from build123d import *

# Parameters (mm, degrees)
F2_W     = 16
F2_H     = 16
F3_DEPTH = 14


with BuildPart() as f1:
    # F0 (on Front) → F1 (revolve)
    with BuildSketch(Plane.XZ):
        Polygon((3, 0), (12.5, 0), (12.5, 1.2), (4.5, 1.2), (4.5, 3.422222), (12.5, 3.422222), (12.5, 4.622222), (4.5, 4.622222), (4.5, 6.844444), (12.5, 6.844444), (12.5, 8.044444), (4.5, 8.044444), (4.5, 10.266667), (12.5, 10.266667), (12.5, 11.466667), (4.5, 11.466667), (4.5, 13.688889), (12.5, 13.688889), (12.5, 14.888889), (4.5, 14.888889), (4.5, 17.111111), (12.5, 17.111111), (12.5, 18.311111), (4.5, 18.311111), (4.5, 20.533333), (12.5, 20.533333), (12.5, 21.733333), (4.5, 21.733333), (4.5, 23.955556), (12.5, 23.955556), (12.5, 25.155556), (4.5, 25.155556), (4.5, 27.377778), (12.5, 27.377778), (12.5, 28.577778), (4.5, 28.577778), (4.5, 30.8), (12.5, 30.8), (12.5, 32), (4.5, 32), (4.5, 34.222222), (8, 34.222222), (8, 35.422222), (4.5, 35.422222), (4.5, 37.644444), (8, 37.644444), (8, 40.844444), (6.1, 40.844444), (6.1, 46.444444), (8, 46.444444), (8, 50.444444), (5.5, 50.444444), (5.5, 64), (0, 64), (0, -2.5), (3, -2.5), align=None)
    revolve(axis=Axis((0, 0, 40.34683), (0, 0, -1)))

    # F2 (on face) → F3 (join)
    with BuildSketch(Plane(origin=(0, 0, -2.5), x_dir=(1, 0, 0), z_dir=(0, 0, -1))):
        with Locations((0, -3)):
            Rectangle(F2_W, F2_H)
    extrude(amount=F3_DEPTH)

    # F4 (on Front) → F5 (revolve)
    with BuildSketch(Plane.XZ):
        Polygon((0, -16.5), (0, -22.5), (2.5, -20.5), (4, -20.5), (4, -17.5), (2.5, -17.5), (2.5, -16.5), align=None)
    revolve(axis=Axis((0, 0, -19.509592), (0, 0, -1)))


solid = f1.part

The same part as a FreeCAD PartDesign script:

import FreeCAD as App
import Part
import Sketcher
from FreeCAD import Vector

doc = App.newDocument("Part")
body = doc.addObject("PartDesign::Body", "Body")

# Sketch on XZ plane
sketch1 = doc.addObject("Sketcher::SketchObject", "Sketch")
body.addObject(sketch1)
sketch1.AttachmentSupport = (doc.XZ_Plane, [""])
sketch1.MapMode = "FlatFace"
sketch1.addGeometry([
    Part.LineSegment(Vector(3, 0, 0), Vector(12.5, 0, 0)),  # 0
    Part.LineSegment(Vector(12.5, 0, 0), Vector(12.5, 1.2, 0)),  # 1
    Part.LineSegment(Vector(12.5, 1.2, 0), Vector(4.5, 1.2, 0)),  # 2
    Part.LineSegment(Vector(4.5, 1.2, 0), Vector(4.5, 3.4, 0)),  # 3
    Part.LineSegment(Vector(4.5, 3.4, 0), Vector(12.5, 3.4, 0)),  # 4
    Part.LineSegment(Vector(12.5, 3.4, 0), Vector(12.5, 4.6, 0)),  # 5
    Part.LineSegment(Vector(12.5, 4.6, 0), Vector(4.5, 4.6, 0)),  # 6
    Part.LineSegment(Vector(4.5, 4.6, 0), Vector(4.5, 6.8, 0)),  # 7
    Part.LineSegment(Vector(4.5, 6.8, 0), Vector(12.5, 6.8, 0)),  # 8
    Part.LineSegment(Vector(12.5, 6.8, 0), Vector(12.5, 8, 0)),  # 9
    Part.LineSegment(Vector(12.5, 8, 0), Vector(4.5, 8, 0)),  # 10
    Part.LineSegment(Vector(4.5, 8, 0), Vector(4.5, 10.3, 0)),  # 11
    Part.LineSegment(Vector(4.5, 10.3, 0), Vector(12.5, 10.3, 0)),  # 12
    Part.LineSegment(Vector(12.5, 10.3, 0), Vector(12.5, 11.5, 0)),  # 13
    Part.LineSegment(Vector(12.5, 11.5, 0), Vector(4.5, 11.5, 0)),  # 14
    Part.LineSegment(Vector(4.5, 11.5, 0), Vector(4.5, 13.7, 0)),  # 15
    Part.LineSegment(Vector(4.5, 13.7, 0), Vector(12.5, 13.7, 0)),  # 16
    Part.LineSegment(Vector(12.5, 13.7, 0), Vector(12.5, 14.9, 0)),  # 17
    Part.LineSegment(Vector(12.5, 14.9, 0), Vector(4.5, 14.9, 0)),  # 18
    Part.LineSegment(Vector(4.5, 14.9, 0), Vector(4.5, 17.1, 0)),  # 19
    Part.LineSegment(Vector(4.5, 17.1, 0), Vector(12.5, 17.1, 0)),  # 20
    Part.LineSegment(Vector(12.5, 17.1, 0), Vector(12.5, 18.3, 0)),  # 21
    Part.LineSegment(Vector(12.5, 18.3, 0), Vector(4.5, 18.3, 0)),  # 22
    Part.LineSegment(Vector(4.5, 18.3, 0), Vector(4.5, 20.5, 0)),  # 23
    Part.LineSegment(Vector(4.5, 20.5, 0), Vector(12.5, 20.5, 0)),  # 24
    Part.LineSegment(Vector(12.5, 20.5, 0), Vector(12.5, 21.7, 0)),  # 25
    Part.LineSegment(Vector(12.5, 21.7, 0), Vector(4.5, 21.7, 0)),  # 26
    Part.LineSegment(Vector(4.5, 21.7, 0), Vector(4.5, 24, 0)),  # 27
    Part.LineSegment(Vector(4.5, 24, 0), Vector(12.5, 24, 0)),  # 28
    Part.LineSegment(Vector(12.5, 24, 0), Vector(12.5, 25.2, 0)),  # 29
    Part.LineSegment(Vector(12.5, 25.2, 0), Vector(4.5, 25.2, 0)),  # 30
    Part.LineSegment(Vector(4.5, 25.2, 0), Vector(4.5, 27.4, 0)),  # 31
    Part.LineSegment(Vector(4.5, 27.4, 0), Vector(12.5, 27.4, 0)),  # 32
    Part.LineSegment(Vector(12.5, 27.4, 0), Vector(12.5, 28.6, 0)),  # 33
    Part.LineSegment(Vector(12.5, 28.6, 0), Vector(4.5, 28.6, 0)),  # 34
    Part.LineSegment(Vector(4.5, 28.6, 0), Vector(4.5, 30.8, 0)),  # 35
    Part.LineSegment(Vector(4.5, 30.8, 0), Vector(12.5, 30.8, 0)),  # 36
    Part.LineSegment(Vector(12.5, 30.8, 0), Vector(12.5, 32, 0)),  # 37
    Part.LineSegment(Vector(12.5, 32, 0), Vector(4.5, 32, 0)),  # 38
    Part.LineSegment(Vector(4.5, 32, 0), Vector(4.5, 34.2, 0)),  # 39
    Part.LineSegment(Vector(4.5, 34.2, 0), Vector(8, 34.2, 0)),  # 40
    Part.LineSegment(Vector(8, 34.2, 0), Vector(8, 35.4, 0)),  # 41
    Part.LineSegment(Vector(8, 35.4, 0), Vector(4.5, 35.4, 0)),  # 42
    Part.LineSegment(Vector(4.5, 35.4, 0), Vector(4.5, 37.6, 0)),  # 43
    Part.LineSegment(Vector(4.5, 37.6, 0), Vector(8, 37.6, 0)),  # 44
    Part.LineSegment(Vector(8, 37.6, 0), Vector(8, 40.8, 0)),  # 45
    Part.LineSegment(Vector(8, 40.8, 0), Vector(6.1, 40.8, 0)),  # 46
    Part.LineSegment(Vector(6.1, 40.8, 0), Vector(6.1, 46.4, 0)),  # 47
    Part.LineSegment(Vector(6.1, 46.4, 0), Vector(8, 46.4, 0)),  # 48
    Part.LineSegment(Vector(8, 46.4, 0), Vector(8, 50.4, 0)),  # 49
    Part.LineSegment(Vector(8, 50.4, 0), Vector(5.5, 50.4, 0)),  # 50
    Part.LineSegment(Vector(5.5, 50.4, 0), Vector(5.5, 64, 0)),  # 51
    Part.LineSegment(Vector(5.5, 64, 0), Vector(0, 64, 0)),  # 52
    Part.LineSegment(Vector(0, 64, 0), Vector(0, -2.5, 0)),  # 53
    Part.LineSegment(Vector(0, -2.5, 0), Vector(3, -2.5, 0)),  # 54
    Part.LineSegment(Vector(3, -2.5, 0), Vector(3, 0, 0)),  # 55
], False)
sketch1.addConstraint([
    Sketcher.Constraint("Coincident", 0, 2, 1, 1),
    Sketcher.Constraint("Coincident", 1, 2, 2, 1),
    Sketcher.Constraint("Coincident", 2, 2, 3, 1),
    Sketcher.Constraint("Coincident", 3, 2, 4, 1),
    Sketcher.Constraint("Coincident", 4, 2, 5, 1),
    Sketcher.Constraint("Coincident", 5, 2, 6, 1),
    Sketcher.Constraint("Coincident", 6, 2, 7, 1),
    Sketcher.Constraint("Coincident", 7, 2, 8, 1),
    Sketcher.Constraint("Coincident", 8, 2, 9, 1),
    Sketcher.Constraint("Coincident", 9, 2, 10, 1),
    Sketcher.Constraint("Coincident", 10, 2, 11, 1),
    Sketcher.Constraint("Coincident", 11, 2, 12, 1),
    Sketcher.Constraint("Coincident", 12, 2, 13, 1),
    Sketcher.Constraint("Coincident", 13, 2, 14, 1),
    Sketcher.Constraint("Coincident", 14, 2, 15, 1),
    Sketcher.Constraint("Coincident", 15, 2, 16, 1),
    Sketcher.Constraint("Coincident", 16, 2, 17, 1),
    Sketcher.Constraint("Coincident", 17, 2, 18, 1),
    Sketcher.Constraint("Coincident", 18, 2, 19, 1),
    Sketcher.Constraint("Coincident", 19, 2, 20, 1),
    Sketcher.Constraint("Coincident", 20, 2, 21, 1),
    Sketcher.Constraint("Coincident", 21, 2, 22, 1),
    Sketcher.Constraint("Coincident", 22, 2, 23, 1),
    Sketcher.Constraint("Coincident", 23, 2, 24, 1),
    Sketcher.Constraint("Coincident", 24, 2, 25, 1),
    Sketcher.Constraint("Coincident", 25, 2, 26, 1),
    Sketcher.Constraint("Coincident", 26, 2, 27, 1),
    Sketcher.Constraint("Coincident", 27, 2, 28, 1),
    Sketcher.Constraint("Coincident", 28, 2, 29, 1),
    Sketcher.Constraint("Coincident", 29, 2, 30, 1),
    Sketcher.Constraint("Coincident", 30, 2, 31, 1),
    Sketcher.Constraint("Coincident", 31, 2, 32, 1),
    Sketcher.Constraint("Coincident", 32, 2, 33, 1),
    Sketcher.Constraint("Coincident", 33, 2, 34, 1),
    Sketcher.Constraint("Coincident", 34, 2, 35, 1),
    Sketcher.Constraint("Coincident", 35, 2, 36, 1),
    Sketcher.Constraint("Coincident", 36, 2, 37, 1),
    Sketcher.Constraint("Coincident", 37, 2, 38, 1),
    Sketcher.Constraint("Coincident", 38, 2, 39, 1),
    Sketcher.Constraint("Coincident", 39, 2, 40, 1),
    Sketcher.Constraint("Coincident", 40, 2, 41, 1),
    Sketcher.Constraint("Coincident", 41, 2, 42, 1),
    Sketcher.Constraint("Coincident", 42, 2, 43, 1),
    Sketcher.Constraint("Coincident", 43, 2, 44, 1),
    Sketcher.Constraint("Coincident", 44, 2, 45, 1),
    Sketcher.Constraint("Coincident", 45, 2, 46, 1),
    Sketcher.Constraint("Coincident", 46, 2, 47, 1),
    Sketcher.Constraint("Coincident", 47, 2, 48, 1),
    Sketcher.Constraint("Coincident", 48, 2, 49, 1),
    Sketcher.Constraint("Coincident", 49, 2, 50, 1),
    Sketcher.Constraint("Coincident", 50, 2, 51, 1),
    Sketcher.Constraint("Coincident", 51, 2, 52, 1),
    Sketcher.Constraint("Coincident", 52, 2, 53, 1),
    Sketcher.Constraint("Coincident", 53, 2, 54, 1),
    Sketcher.Constraint("Coincident", 54, 2, 55, 1),
    Sketcher.Constraint("Coincident", 55, 2, 0, 1),
    Sketcher.Constraint("Horizontal", 0),
    Sketcher.Constraint("Vertical", 1),
    Sketcher.Constraint("Horizontal", 2),
    Sketcher.Constraint("Vertical", 3),
    Sketcher.Constraint("Horizontal", 4),
    Sketcher.Constraint("Vertical", 5),
    Sketcher.Constraint("Horizontal", 6),
    Sketcher.Constraint("Vertical", 7),
    Sketcher.Constraint("Horizontal", 8),
    Sketcher.Constraint("Vertical", 9),
    Sketcher.Constraint("Horizontal", 10),
    Sketcher.Constraint("Vertical", 11),
    Sketcher.Constraint("Horizontal", 12),
    Sketcher.Constraint("Vertical", 13),
    Sketcher.Constraint("Horizontal", 14),
    Sketcher.Constraint("Vertical", 15),
    Sketcher.Constraint("Horizontal", 16),
    Sketcher.Constraint("Vertical", 17),
    Sketcher.Constraint("Horizontal", 18),
    Sketcher.Constraint("Vertical", 19),
    Sketcher.Constraint("Horizontal", 20),
    Sketcher.Constraint("Vertical", 21),
    Sketcher.Constraint("Horizontal", 22),
    Sketcher.Constraint("Vertical", 23),
    Sketcher.Constraint("Horizontal", 24),
    Sketcher.Constraint("Vertical", 25),
    Sketcher.Constraint("Horizontal", 26),
    Sketcher.Constraint("Vertical", 27),
    Sketcher.Constraint("Horizontal", 28),
    Sketcher.Constraint("Vertical", 29),
    Sketcher.Constraint("Horizontal", 30),
    Sketcher.Constraint("Vertical", 31),
    Sketcher.Constraint("Horizontal", 32),
    Sketcher.Constraint("Vertical", 33),
    Sketcher.Constraint("Horizontal", 34),
    Sketcher.Constraint("Vertical", 35),
    Sketcher.Constraint("Horizontal", 36),
    Sketcher.Constraint("Vertical", 37),
    Sketcher.Constraint("Horizontal", 38),
    Sketcher.Constraint("Vertical", 39),
    Sketcher.Constraint("Horizontal", 40),
    Sketcher.Constraint("Vertical", 41),
    Sketcher.Constraint("Horizontal", 42),
    Sketcher.Constraint("Vertical", 43),
    Sketcher.Constraint("Horizontal", 44),
    Sketcher.Constraint("Vertical", 45),
    Sketcher.Constraint("Horizontal", 46),
    Sketcher.Constraint("Vertical", 47),
    Sketcher.Constraint("Horizontal", 48),
    Sketcher.Constraint("Vertical", 49),
    Sketcher.Constraint("Horizontal", 50),
    Sketcher.Constraint("Vertical", 51),
    Sketcher.Constraint("Horizontal", 52),
    Sketcher.Constraint("Vertical", 53),
    Sketcher.Constraint("Horizontal", 54),
    Sketcher.Constraint("Vertical", 55),
    Sketcher.Constraint("PointOnObject", 0, 2, -1),
    Sketcher.Constraint("PointOnObject", 52, 2, -2),
    Sketcher.Constraint("Vertical", 1, 2, 4, 2),
    Sketcher.Constraint("Vertical", 3, 2, 6, 2),
    Sketcher.Constraint("Vertical", 5, 2, 8, 2),
    Sketcher.Constraint("Vertical", 7, 2, 10, 2),
    Sketcher.Constraint("Vertical", 9, 2, 12, 2),
    Sketcher.Constraint("Vertical", 11, 2, 14, 2),
    Sketcher.Constraint("Vertical", 13, 2, 16, 2),
    Sketcher.Constraint("Vertical", 15, 2, 18, 2),
    Sketcher.Constraint("Vertical", 17, 2, 20, 2),
    Sketcher.Constraint("Vertical", 19, 2, 22, 2),
    Sketcher.Constraint("Vertical", 21, 2, 24, 2),
    Sketcher.Constraint("Vertical", 23, 2, 26, 2),
    Sketcher.Constraint("Vertical", 25, 2, 28, 2),
    Sketcher.Constraint("Vertical", 27, 2, 30, 2),
    Sketcher.Constraint("Vertical", 29, 2, 32, 2),
    Sketcher.Constraint("Vertical", 31, 2, 34, 2),
    Sketcher.Constraint("Vertical", 33, 2, 36, 2),
    Sketcher.Constraint("Vertical", 35, 2, 38, 2),
    Sketcher.Constraint("Vertical", 39, 2, 42, 2),
    Sketcher.Constraint("Vertical", 41, 2, 44, 2),
    Sketcher.Constraint("Vertical", 45, 2, 48, 2),
    Sketcher.Constraint("Equal", 1, 5),
    Sketcher.Constraint("Equal", 3, 7),
    Sketcher.Constraint("Equal", 5, 9),
    Sketcher.Constraint("Equal", 7, 11),
    Sketcher.Constraint("Equal", 9, 13),
    Sketcher.Constraint("Equal", 11, 15),
    Sketcher.Constraint("Equal", 13, 17),
    Sketcher.Constraint("Equal", 15, 19),
    Sketcher.Constraint("Equal", 17, 21),
    Sketcher.Constraint("Equal", 19, 23),
    Sketcher.Constraint("Equal", 21, 25),
    Sketcher.Constraint("Equal", 23, 27),
    Sketcher.Constraint("Equal", 25, 29),
    Sketcher.Constraint("Equal", 27, 31),
    Sketcher.Constraint("Equal", 29, 33),
    Sketcher.Constraint("Equal", 31, 35),
    Sketcher.Constraint("Equal", 33, 37),
    Sketcher.Constraint("Equal", 35, 39),
    Sketcher.Constraint("Equal", 37, 41),
    Sketcher.Constraint("Equal", 39, 43),
    Sketcher.Constraint("Equal", 50, 55),
    Sketcher.Constraint("DistanceX", 2, 2, 2, 1, 8.0),
    Sketcher.Constraint("DistanceX", 54, 1, 54, 2, 3.0),
    Sketcher.Constraint("DistanceY", 49, 1, 49, 2, 4.0),
    Sketcher.Constraint("DistanceX", 0, 1, 0, 2, 9.5),
    Sketcher.Constraint("DistanceX", 40, 1, 40, 2, 3.5),
    Sketcher.Constraint("DistanceX", 46, 2, 46, 1, 1.9),
    Sketcher.Constraint("DistanceX", 50, 2, 50, 1, 2.5),
    Sketcher.Constraint("DistanceY", 1, 1, 1, 2, 1.2),
    Sketcher.Constraint("DistanceY", 45, 1, 45, 2, 3.2),
    Sketcher.Constraint("DistanceY", 47, 1, 47, 2, 5.6),
    Sketcher.Constraint("DistanceY", 53, 2, 53, 1, 66.5),
    Sketcher.Constraint("DistanceY", -1, 1, 37, 2, 32.0),
])
revolution = doc.addObject("PartDesign::Revolution", "Revolution")
body.addObject(revolution)
revolution.Profile = sketch1
revolution.ReferenceAxis = (sketch1, ["V_Axis"])
revolution.Angle = 360

# Sketch on XY plane
sketch2 = doc.addObject("Sketcher::SketchObject", "Sketch001")
body.addObject(sketch2)
sketch2.AttachmentSupport = (doc.XY_Plane, [""])
sketch2.MapMode = "FlatFace"
sketch2.AttachmentOffset = App.Placement(Vector(0, 0, -2.5), App.Rotation())
sketch2.addGeometry([
    Part.LineSegment(Vector(-8, -5, 0), Vector(-8, 11, 0)),
    Part.LineSegment(Vector(-8, 11, 0), Vector(8, 11, 0)),
    Part.LineSegment(Vector(8, 11, 0), Vector(8, -5, 0)),
    Part.LineSegment(Vector(8, -5, 0), Vector(-8, -5, 0)),
], False)
sketch2.addConstraint([
    Sketcher.Constraint("Coincident", 0, 2, 1, 1),
    Sketcher.Constraint("Coincident", 1, 2, 2, 1),
    Sketcher.Constraint("Coincident", 2, 2, 3, 1),
    Sketcher.Constraint("Coincident", 3, 2, 0, 1),
    Sketcher.Constraint("Vertical", 0),
    Sketcher.Constraint("Horizontal", 1),
    Sketcher.Constraint("Vertical", 2),
    Sketcher.Constraint("Horizontal", 3),
    Sketcher.Constraint("Equal", 3, 0),
    Sketcher.Constraint("DistanceX", 1, 1, 1, 2, 16.0),
    Sketcher.Constraint("DistanceX", 0, 2, -1, 1, 8.0),
    Sketcher.Constraint("DistanceY", -1, 1, 0, 2, 11.0),
])
pad1 = doc.addObject("PartDesign::Pad", "Pad")
body.addObject(pad1)
pad1.Profile = sketch2
pad1.Length = 14
pad1.Reversed = True

# Sketch on XZ plane
sketch3 = doc.addObject("Sketcher::SketchObject", "Sketch002")
body.addObject(sketch3)
sketch3.AttachmentSupport = (doc.XZ_Plane, [""])
sketch3.MapMode = "FlatFace"
sketch3.addGeometry([
    Part.LineSegment(Vector(0, -16.5, 0), Vector(0, -22.5, 0)),  # 0
    Part.LineSegment(Vector(0, -22.5, 0), Vector(2.5, -20.5, 0)),  # 1
    Part.LineSegment(Vector(2.5, -20.5, 0), Vector(4, -20.5, 0)),  # 2
    Part.LineSegment(Vector(4, -20.5, 0), Vector(4, -17.5, 0)),  # 3
    Part.LineSegment(Vector(4, -17.5, 0), Vector(2.5, -17.5, 0)),  # 4
    Part.LineSegment(Vector(2.5, -17.5, 0), Vector(2.5, -16.5, 0)),  # 5
    Part.LineSegment(Vector(2.5, -16.5, 0), Vector(0, -16.5, 0)),  # 6
], False)
sketch3.addConstraint([
    Sketcher.Constraint("Coincident", 0, 2, 1, 1),
    Sketcher.Constraint("Coincident", 1, 2, 2, 1),
    Sketcher.Constraint("Coincident", 2, 2, 3, 1),
    Sketcher.Constraint("Coincident", 3, 2, 4, 1),
    Sketcher.Constraint("Coincident", 4, 2, 5, 1),
    Sketcher.Constraint("Coincident", 5, 2, 6, 1),
    Sketcher.Constraint("Coincident", 6, 2, 0, 1),
    Sketcher.Constraint("Vertical", 0),
    Sketcher.Constraint("Horizontal", 2),
    Sketcher.Constraint("Vertical", 3),
    Sketcher.Constraint("Horizontal", 4),
    Sketcher.Constraint("Vertical", 5),
    Sketcher.Constraint("Horizontal", 6),
    Sketcher.Constraint("PointOnObject", 0, 2, -2),
    Sketcher.Constraint("Vertical", 1, 2, 4, 2),
    Sketcher.Constraint("DistanceY", 0, 2, 0, 1, 6.0),
    Sketcher.Constraint("DistanceY", 3, 1, 3, 2, 3.0),
    Sketcher.Constraint("DistanceY", 5, 1, 5, 2, 1.0),
    Sketcher.Constraint("DistanceX", 2, 1, 2, 2, 1.5),
    Sketcher.Constraint("DistanceX", 6, 2, 6, 1, 2.5),
    Sketcher.Constraint("DistanceY", 0, 2, -1, 1, 22.5),
])
revolution2 = doc.addObject("PartDesign::Revolution", "Revolution001")
body.addObject(revolution2)
revolution2.Profile = sketch3
revolution2.ReferenceAxis = (sketch3, ["V_Axis"])
revolution2.Angle = 360

doc.recompute()
